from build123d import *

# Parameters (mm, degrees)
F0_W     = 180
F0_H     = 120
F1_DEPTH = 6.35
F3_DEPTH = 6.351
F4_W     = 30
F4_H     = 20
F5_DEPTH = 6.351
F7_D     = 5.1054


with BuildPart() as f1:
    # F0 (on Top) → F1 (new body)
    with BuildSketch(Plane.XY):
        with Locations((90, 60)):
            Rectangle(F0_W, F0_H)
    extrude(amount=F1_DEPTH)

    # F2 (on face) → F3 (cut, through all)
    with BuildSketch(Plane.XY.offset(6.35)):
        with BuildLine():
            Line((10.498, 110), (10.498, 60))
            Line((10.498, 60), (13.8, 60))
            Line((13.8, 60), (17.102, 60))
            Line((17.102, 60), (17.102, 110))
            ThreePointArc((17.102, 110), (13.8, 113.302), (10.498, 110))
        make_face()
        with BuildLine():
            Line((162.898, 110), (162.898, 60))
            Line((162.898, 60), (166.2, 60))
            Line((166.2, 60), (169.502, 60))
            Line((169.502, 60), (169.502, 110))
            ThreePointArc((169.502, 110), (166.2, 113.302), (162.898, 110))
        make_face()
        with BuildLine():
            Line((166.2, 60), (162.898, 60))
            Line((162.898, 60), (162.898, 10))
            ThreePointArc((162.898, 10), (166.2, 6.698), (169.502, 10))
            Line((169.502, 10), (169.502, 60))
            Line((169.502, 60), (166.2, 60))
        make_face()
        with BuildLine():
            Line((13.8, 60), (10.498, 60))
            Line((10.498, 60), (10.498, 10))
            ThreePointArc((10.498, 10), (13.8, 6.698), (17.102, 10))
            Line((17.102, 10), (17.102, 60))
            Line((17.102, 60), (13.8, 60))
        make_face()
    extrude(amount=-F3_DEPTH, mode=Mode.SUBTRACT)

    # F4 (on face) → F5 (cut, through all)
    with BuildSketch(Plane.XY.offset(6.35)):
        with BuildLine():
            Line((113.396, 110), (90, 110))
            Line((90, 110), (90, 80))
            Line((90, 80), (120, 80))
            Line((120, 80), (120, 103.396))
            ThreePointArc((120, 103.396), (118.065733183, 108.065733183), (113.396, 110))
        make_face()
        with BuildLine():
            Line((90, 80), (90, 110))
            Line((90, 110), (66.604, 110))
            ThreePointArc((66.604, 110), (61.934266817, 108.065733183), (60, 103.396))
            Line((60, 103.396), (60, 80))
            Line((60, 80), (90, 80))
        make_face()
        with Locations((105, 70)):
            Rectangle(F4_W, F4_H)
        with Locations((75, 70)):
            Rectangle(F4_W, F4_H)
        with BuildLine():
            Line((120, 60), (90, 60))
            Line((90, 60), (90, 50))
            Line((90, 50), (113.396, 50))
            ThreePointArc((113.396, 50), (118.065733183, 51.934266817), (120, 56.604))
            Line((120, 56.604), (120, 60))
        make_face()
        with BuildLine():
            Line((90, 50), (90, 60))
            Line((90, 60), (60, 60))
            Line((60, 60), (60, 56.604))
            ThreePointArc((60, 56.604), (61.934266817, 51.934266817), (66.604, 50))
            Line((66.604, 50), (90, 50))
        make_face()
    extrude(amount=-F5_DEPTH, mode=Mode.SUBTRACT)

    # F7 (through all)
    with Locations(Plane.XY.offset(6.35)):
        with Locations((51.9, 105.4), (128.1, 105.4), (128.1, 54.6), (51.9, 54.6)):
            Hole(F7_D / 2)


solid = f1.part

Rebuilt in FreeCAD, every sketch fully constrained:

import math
import FreeCAD as App
import Part
import Sketcher
from FreeCAD import Vector
Q = App.Units.Quantity


def add_polygon(sketch, points):
    """Adds a closed chain of lines whose ends are joined by coincident constraints."""
    first, n = sketch.GeometryCount, len(points)
    for a, b in zip(points, points[1:] + points[:1]):
        sketch.addGeometry(Part.LineSegment(App.Vector(*a, 0), App.Vector(*b, 0)), False)
    for i in range(n):
        sketch.addConstraint(Sketcher.Constraint("Coincident", first + i, 2, first + (i + 1) % n, 1))

doc = App.newDocument("Part")
body = doc.addObject("PartDesign::Body", "Body")

# Sketch on XY plane
sketch1 = body.newObject("Sketcher::SketchObject", "Sketch")
sketch1.AttachmentSupport = (doc.getObject("XY_Plane"), [""])
sketch1.MapMode = "FlatFace"
add_polygon(sketch1, [(0, 120), (0, 0), (180, 0), (180, 120)])  # lines 0-3
sketch1.addConstraint([
    Sketcher.Constraint("Vertical", 0),
    Sketcher.Constraint("Horizontal", 1),
    Sketcher.Constraint("Vertical", 2),
    Sketcher.Constraint("Horizontal", 3),
    Sketcher.Constraint("Coincident", 0, 2, -1, 1),
    Sketcher.Constraint("DistanceX", 1, 1, 1, 2, 180.0),
    Sketcher.Constraint("DistanceY", 0, 2, 0, 1, 120.0),
])
pad1 = body.newObject("PartDesign::Pad", "Pad")
pad1.Profile = sketch1
pad1.Length = Q("0.25 in")

# Sketch on XY plane
sketch2 = body.newObject("Sketcher::SketchObject", "Sketch001")
sketch2.AttachmentSupport = (doc.getObject("XY_Plane"), [""])
sketch2.MapMode = "FlatFace"
sketch2.AttachmentOffset = App.Placement(Vector(0, 0, 0.25 * 25.4), App.Rotation())
sketch2.addGeometry([
    Part.LineSegment(Vector(10.5, 110, 0), Vector(10.5, 10, 0)),  # 0
    Part.ArcOfCircle(Part.Circle(Vector(13.8, 10, 0), Vector(0, 0, 1), 3.3), math.radians(180), math.radians(360)),  # 1
    Part.LineSegment(Vector(17.1, 10, 0), Vector(17.1, 110, 0)),  # 2
    Part.ArcOfCircle(Part.Circle(Vector(13.8, 110, 0), Vector(0, 0, 1), 3.3), math.radians(0), math.radians(180)),  # 3
    Part.LineSegment(Vector(162.9, 110, 0), Vector(162.9, 10, 0)),  # 4
    Part.ArcOfCircle(Part.Circle(Vector(166.2, 10, 0), Vector(0, 0, 1), 3.3), math.radians(180), math.radians(360)),  # 5
    Part.LineSegment(Vector(169.5, 10, 0), Vector(169.5, 110, 0)),  # 6
    Part.ArcOfCircle(Part.Circle(Vector(166.2, 110, 0), Vector(0, 0, 1), 3.3), math.radians(0), math.radians(180)),  # 7
], False)
sketch2.addConstraint([
    Sketcher.Constraint("Tangent", 0, 2, 1, 1),
    Sketcher.Constraint("Tangent", 1, 2, 2, 1),
    Sketcher.Constraint("Tangent", 2, 2, 3, 1),
    Sketcher.Constraint("Tangent", 3, 2, 0, 1),
    Sketcher.Constraint("Tangent", 4, 2, 5, 1),
    Sketcher.Constraint("Tangent", 5, 2, 6, 1),
    Sketcher.Constraint("Tangent", 6, 2, 7, 1),
    Sketcher.Constraint("Tangent", 7, 2, 4, 1),
    Sketcher.Constraint("Vertical", 0),
    Sketcher.Constraint("Vertical", 2),
    Sketcher.Constraint("Vertical", 4),
    Sketcher.Constraint("Vertical", 6),
    Sketcher.Constraint("Equal", 3, 5),
    Sketcher.Constraint("Horizontal", 1, 3, 5, 3),
    Sketcher.Constraint("Horizontal", 3, 3, 7, 3),
    Sketcher.Constraint("Radius", 1, Q("0.13 in")),
    Sketcher.Constraint("DistanceX", 1, 3, 5, 3, Q("6 in")),
    Sketcher.Constraint("DistanceY", 0, 2, 0, 1, 100.0),
    Sketcher.Constraint("DistanceX", -1, 1, 1, 3, 13.8),
    Sketcher.Constraint("DistanceY", -1, 1, 1, 3, 10.0),
])
pocket1 = body.newObject("PartDesign::Pocket", "Pocket")
pocket1.Profile = sketch2
pocket1.Type = "ThroughAll"

# Sketch on XY plane
sketch3 = body.newObject("Sketcher::SketchObject", "Sketch002")
sketch3.AttachmentSupport = (doc.getObject("XY_Plane"), [""])
sketch3.MapMode = "FlatFace"
sketch3.AttachmentOffset = App.Placement(Vector(0, 0, 0.25 * 25.4), App.Rotation())
sketch3.addGeometry([
    Part.LineSegment(Vector(113, 110, 0), Vector(67, 110, 0)),  # 0
    Part.ArcOfCircle(Part.Circle(Vector(67, 103, 0), Vector(0, 0, 1), 7), math.radians(90), math.radians(180)),  # 1
    Part.LineSegment(Vector(60, 103, 0), Vector(60, 57, 0)),  # 2
    Part.ArcOfCircle(Part.Circle(Vector(67, 57, 0), Vector(0, 0, 1), 7), math.radians(180), math.radians(270)),  # 3
    Part.LineSegment(Vector(67, 50, 0), Vector(113, 50, 0)),  # 4
    Part.ArcOfCircle(Part.Circle(Vector(113, 57, 0), Vector(0, 0, 1), 7), math.radians(-90), math.radians(0)),  # 5
    Part.LineSegment(Vector(120, 57, 0), Vector(120, 103, 0)),  # 6
    Part.ArcOfCircle(Part.Circle(Vector(113, 103, 0), Vector(0, 0, 1), 7), math.radians(0), math.radians(90)),  # 7
], False)
sketch3.addConstraint([
    Sketcher.Constraint("Tangent", 0, 2, 1, 1),
    Sketcher.Constraint("Tangent", 1, 2, 2, 1),
    Sketcher.Constraint("Tangent", 2, 2, 3, 1),
    Sketcher.Constraint("Tangent", 3, 2, 4, 1),
    Sketcher.Constraint("Tangent", 4, 2, 5, 1),
    Sketcher.Constraint("Tangent", 5, 2, 6, 1),
    Sketcher.Constraint("Tangent", 6, 2, 7, 1),
    Sketcher.Constraint("Tangent", 7, 2, 0, 1),
    Sketcher.Constraint("Horizontal", 0),
    Sketcher.Constraint("Vertical", 2),
    Sketcher.Constraint("Horizontal", 4),
    Sketcher.Constraint("Vertical", 6),
    Sketcher.Constraint("Equal", 1, 3),
    Sketcher.Constraint("Equal", 3, 5),
    Sketcher.Constraint("Equal", 5, 7),
    Sketcher.Constraint("Equal", 4, 2),
    Sketcher.Constraint("Radius", 1, Q("0.26 in")),
    Sketcher.Constraint("DistanceX", 0, 2, 0, 1, 46.792),
    Sketcher.Constraint("DistanceX", -1, 1, 1, 3, 66.604),
    Sketcher.Constraint("DistanceY", -1, 1, 1, 3, 103.396),
])
pocket2 = body.newObject("PartDesign::Pocket", "Pocket001")
pocket2.Profile = sketch3
pocket2.Type = "ThroughAll"

# Sketch on XY plane
sketch4 = body.newObject("Sketcher::SketchObject", "Sketch003")
sketch4.AttachmentSupport = (doc.getObject("XY_Plane"), [""])
sketch4.MapMode = "FlatFace"
sketch4.AttachmentOffset = App.Placement(Vector(0, 0, 0.25 * 25.4), App.Rotation())
sketch4.addGeometry([
    Part.Circle(Vector(51.9, 105.4, 0), Vector(0, 0, 1), 2.6),
    Part.Circle(Vector(128.1, 105.4, 0), Vector(0, 0, 1), 2.6),
    Part.Circle(Vector(128.1, 54.6, 0), Vector(0, 0, 1), 2.6),
    Part.Circle(Vector(51.9, 54.6, 0), Vector(0, 0, 1), 2.6),
], False)
sketch4.addConstraint([
    Sketcher.Constraint("Equal", 0, 1),
    Sketcher.Constraint("Equal", 1, 2),
    Sketcher.Constraint("Equal", 2, 3),
    Sketcher.Constraint("Horizontal", 0, 3, 1, 3),
    Sketcher.Constraint("Horizontal", 2, 3, 3, 3),
    Sketcher.Constraint("Vertical", 1, 3, 2, 3),
    Sketcher.Constraint("Vertical", 0, 3, 3, 3),
    Sketcher.Constraint("Diameter", 0, Q("0.201 in")),
    Sketcher.Constraint("DistanceX", 0, 3, 1, 3, Q("3 in")),
    Sketcher.Constraint("DistanceY", 2, 3, 1, 3, Q("2 in")),
    Sketcher.Constraint("DistanceX", -1, 1, 0, 3, 51.9),
    Sketcher.Constraint("DistanceY", -1, 1, 0, 3, 105.4),
])
doc.recompute()
hole = body.newObject("PartDesign::Hole", "Hole")
hole.Profile = sketch4
hole.ThreadType = "None"
hole.Diameter = Q("0.201 in")
hole.DepthType = "ThroughAll"

doc.recompute()
